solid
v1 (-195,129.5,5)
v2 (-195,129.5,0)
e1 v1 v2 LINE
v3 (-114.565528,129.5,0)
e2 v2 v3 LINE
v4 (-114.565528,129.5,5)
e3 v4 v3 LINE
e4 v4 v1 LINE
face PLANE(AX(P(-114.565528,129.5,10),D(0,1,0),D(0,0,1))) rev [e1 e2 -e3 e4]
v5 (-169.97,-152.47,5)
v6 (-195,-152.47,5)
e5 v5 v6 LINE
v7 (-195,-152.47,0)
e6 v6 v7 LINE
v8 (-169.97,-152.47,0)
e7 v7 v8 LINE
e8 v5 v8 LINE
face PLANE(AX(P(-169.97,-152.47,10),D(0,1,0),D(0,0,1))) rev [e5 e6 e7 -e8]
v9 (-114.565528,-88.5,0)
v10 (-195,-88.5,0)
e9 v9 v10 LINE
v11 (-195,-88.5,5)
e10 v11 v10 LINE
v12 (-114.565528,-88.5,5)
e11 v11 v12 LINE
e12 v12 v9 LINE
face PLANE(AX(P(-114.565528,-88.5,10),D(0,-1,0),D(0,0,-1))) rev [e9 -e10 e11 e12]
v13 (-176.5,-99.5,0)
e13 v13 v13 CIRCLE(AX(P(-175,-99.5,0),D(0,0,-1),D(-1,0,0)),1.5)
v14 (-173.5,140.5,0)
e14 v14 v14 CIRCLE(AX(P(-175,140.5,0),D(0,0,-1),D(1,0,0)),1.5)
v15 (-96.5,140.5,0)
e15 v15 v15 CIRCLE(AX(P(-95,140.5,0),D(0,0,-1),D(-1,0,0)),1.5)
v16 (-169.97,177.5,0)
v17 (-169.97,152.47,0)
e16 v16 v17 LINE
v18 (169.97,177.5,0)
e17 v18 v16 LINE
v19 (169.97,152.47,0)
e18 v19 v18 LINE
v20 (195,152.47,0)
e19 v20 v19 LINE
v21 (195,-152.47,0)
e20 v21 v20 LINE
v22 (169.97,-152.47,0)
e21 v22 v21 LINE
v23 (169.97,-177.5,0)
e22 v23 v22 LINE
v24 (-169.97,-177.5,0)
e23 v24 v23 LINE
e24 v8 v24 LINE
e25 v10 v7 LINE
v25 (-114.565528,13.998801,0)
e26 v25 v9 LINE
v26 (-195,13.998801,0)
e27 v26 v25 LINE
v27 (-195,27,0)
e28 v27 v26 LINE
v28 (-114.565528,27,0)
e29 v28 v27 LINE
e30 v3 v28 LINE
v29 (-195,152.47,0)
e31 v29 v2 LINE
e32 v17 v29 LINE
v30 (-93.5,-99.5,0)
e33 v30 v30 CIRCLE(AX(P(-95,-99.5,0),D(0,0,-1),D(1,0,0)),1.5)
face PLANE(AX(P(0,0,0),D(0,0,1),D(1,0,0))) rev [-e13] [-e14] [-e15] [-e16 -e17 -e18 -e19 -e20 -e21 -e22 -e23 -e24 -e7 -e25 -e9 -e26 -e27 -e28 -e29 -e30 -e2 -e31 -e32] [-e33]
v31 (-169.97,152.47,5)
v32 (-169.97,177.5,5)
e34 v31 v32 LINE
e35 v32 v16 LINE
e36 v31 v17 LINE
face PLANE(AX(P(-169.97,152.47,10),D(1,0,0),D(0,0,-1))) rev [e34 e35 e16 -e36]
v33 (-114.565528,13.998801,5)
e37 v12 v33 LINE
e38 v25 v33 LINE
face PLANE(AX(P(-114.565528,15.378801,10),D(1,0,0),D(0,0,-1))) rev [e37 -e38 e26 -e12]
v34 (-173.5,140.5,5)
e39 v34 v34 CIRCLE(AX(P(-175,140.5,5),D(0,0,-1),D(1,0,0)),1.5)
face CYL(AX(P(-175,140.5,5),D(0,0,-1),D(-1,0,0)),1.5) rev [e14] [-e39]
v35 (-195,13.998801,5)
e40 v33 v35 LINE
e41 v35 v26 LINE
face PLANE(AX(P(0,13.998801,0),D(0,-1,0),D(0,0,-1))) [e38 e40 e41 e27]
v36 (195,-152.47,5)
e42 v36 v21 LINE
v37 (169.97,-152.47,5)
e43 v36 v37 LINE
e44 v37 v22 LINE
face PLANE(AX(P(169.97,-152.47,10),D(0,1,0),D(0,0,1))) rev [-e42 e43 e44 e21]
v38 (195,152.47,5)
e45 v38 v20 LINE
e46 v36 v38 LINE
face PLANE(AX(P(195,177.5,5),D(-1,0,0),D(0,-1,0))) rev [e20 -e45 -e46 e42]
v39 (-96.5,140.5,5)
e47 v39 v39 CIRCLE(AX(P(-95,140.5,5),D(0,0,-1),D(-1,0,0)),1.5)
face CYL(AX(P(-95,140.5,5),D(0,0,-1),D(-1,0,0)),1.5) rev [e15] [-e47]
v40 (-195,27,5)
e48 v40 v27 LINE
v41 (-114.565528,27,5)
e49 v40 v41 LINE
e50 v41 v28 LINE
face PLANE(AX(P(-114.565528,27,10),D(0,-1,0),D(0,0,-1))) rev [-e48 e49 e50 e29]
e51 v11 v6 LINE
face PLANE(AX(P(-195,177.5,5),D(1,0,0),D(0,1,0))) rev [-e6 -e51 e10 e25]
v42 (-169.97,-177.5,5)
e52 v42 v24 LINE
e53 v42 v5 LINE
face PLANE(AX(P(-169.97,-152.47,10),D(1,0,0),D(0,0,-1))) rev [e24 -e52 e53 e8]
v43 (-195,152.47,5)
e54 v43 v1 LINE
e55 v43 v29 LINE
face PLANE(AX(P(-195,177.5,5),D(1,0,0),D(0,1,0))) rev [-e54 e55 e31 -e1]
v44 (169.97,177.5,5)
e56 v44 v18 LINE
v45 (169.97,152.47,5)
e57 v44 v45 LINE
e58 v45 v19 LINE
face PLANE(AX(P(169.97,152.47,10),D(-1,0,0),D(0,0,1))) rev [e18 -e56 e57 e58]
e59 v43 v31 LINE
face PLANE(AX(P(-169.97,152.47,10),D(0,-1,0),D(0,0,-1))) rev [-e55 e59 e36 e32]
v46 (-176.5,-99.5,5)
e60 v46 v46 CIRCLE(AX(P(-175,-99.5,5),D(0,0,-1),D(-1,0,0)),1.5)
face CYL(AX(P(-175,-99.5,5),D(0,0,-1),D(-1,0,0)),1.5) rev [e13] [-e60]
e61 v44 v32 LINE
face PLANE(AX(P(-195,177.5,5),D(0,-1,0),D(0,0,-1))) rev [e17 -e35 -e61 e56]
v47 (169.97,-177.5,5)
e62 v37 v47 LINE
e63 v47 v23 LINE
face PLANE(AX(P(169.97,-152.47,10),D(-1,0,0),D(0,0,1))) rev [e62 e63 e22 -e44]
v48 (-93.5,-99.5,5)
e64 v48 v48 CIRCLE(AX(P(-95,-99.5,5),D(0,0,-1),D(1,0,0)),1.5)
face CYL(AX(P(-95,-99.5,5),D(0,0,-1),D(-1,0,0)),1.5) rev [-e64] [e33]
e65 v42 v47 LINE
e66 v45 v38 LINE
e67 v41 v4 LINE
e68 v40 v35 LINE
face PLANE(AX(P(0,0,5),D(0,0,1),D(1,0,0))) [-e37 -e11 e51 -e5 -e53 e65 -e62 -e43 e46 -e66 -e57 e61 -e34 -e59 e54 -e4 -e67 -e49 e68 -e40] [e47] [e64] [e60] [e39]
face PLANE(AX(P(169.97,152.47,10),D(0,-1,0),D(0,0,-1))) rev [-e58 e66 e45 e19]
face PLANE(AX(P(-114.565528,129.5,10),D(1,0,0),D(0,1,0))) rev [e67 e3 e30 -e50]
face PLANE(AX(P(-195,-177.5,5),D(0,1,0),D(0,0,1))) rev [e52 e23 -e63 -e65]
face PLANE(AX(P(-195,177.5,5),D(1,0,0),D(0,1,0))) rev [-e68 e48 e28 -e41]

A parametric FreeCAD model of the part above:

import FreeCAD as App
import Part
import Sketcher
from FreeCAD import Vector
Q = App.Units.Quantity

doc = App.newDocument("Part")
params = doc.addObject("Spreadsheet::Sheet", "Params")
for row, (alias, value) in enumerate([
    ("sketch1_width", "390 mm"),
    ("sketch1_height", "355 mm"),
    ("pad1_length", "5 mm"),
    ("sketch2_height", "102.5 mm"),
    ("sketch2_width", "25.03 mm"),
    ("pocket1_length", "10 mm"),
    ("sketch3_height", "5 mm"),
    ("pad2_length", "1.38 mm"),
    ("sketch4_diameter", "3 mm"),
], start=1):
    params.set(f"A{row}", alias)
    params.set(f"B{row}", "=" + value)
    params.setAlias(f"B{row}", alias)

body = doc.addObject("PartDesign::Body", "Body")

sketch1 = body.newObject("Sketcher::SketchObject", "Sketch")
sketch1.AttachmentSupport = (doc.getObject("XY_Plane"), [""])
sketch1.MapMode = "FlatFace"
sketch1.addGeometry([
    Part.LineSegment(Vector(-195, 178, 0), Vector(-195, -178, 0)),
    Part.LineSegment(Vector(-195, -178, 0), Vector(195, -178, 0)),
    Part.LineSegment(Vector(195, -178, 0), Vector(195, 178, 0)),
    Part.LineSegment(Vector(195, 178, 0), Vector(-195, 178, 0)),
], False)
sketch1.addConstraint([
    Sketcher.Constraint("Coincident", 0, 2, 1, 1),
    Sketcher.Constraint("Coincident", 1, 2, 2, 1),
    Sketcher.Constraint("Coincident", 2, 2, 3, 1),
    Sketcher.Constraint("Coincident", 3, 2, 0, 1),
    Sketcher.Constraint("Vertical", 0),
    Sketcher.Constraint("Horizontal", 1),
    Sketcher.Constraint("Vertical", 2),
    Sketcher.Constraint("Horizontal", 3),
    Sketcher.Constraint("Symmetric", 0, 2, 2, 2, -1, 1),
    Sketcher.Constraint("DistanceX", 1, 1, 1, 2, Q("390 mm")),
    Sketcher.Constraint("DistanceY", 0, 2, 0, 1, Q("355 mm")),
])
sketch1.setExpression("Constraints[9]", "Params.sketch1_width")
sketch1.setExpression("Constraints[10]", "Params.sketch1_height")
pad1 = body.newObject("PartDesign::Pad", "Pad")
pad1.Profile = sketch1
pad1.setExpression("Length", "Params.pad1_length")

sketch2 = body.newObject("Sketcher::SketchObject", "Sketch001")
sketch2.AttachmentSupport = (doc.getObject("XY_Plane"), [""])
sketch2.MapMode = "FlatFace"
sketch2.addGeometry([
    Part.LineSegment(Vector(-115, 130, 0), Vector(-115, 27, 0)),
    Part.LineSegment(Vector(-115, 27, 0), Vector(-195, 27, 0)),
    Part.LineSegment(Vector(-195, 27, 0), Vector(-195, 130, 0)),
    Part.LineSegment(Vector(-195, 130, 0), Vector(-115, 130, 0)),
    Part.LineSegment(Vector(-115, 15, 0), Vector(-115, -88, 0)),
    Part.LineSegment(Vector(-115, -88, 0), Vector(-195, -88, 0)),
    Part.LineSegment(Vector(-195, -88, 0), Vector(-195, 15, 0)),
    Part.LineSegment(Vector(-195, 15, 0), Vector(-115, 15, 0)),
    Part.LineSegment(Vector(195, 178, 0), Vector(195, 152, 0)),
    Part.LineSegment(Vector(195, 152, 0), Vector(170, 152, 0)),
    Part.LineSegment(Vector(170, 152, 0), Vector(170, 178, 0)),
    Part.LineSegment(Vector(170, 178, 0), Vector(195, 178, 0)),
    Part.LineSegment(Vector(-170, 178, 0), Vector(-170, 152, 0)),
    Part.LineSegment(Vector(-170, 152, 0), Vector(-195, 152, 0)),
    Part.LineSegment(Vector(-195, 152, 0), Vector(-195, 178, 0)),
    Part.LineSegment(Vector(-195, 178, 0), Vector(-170, 178, 0)),
    Part.LineSegment(Vector(-170, -152, 0), Vector(-170, -178, 0)),
    Part.LineSegment(Vector(-170, -178, 0), Vector(-195, -178, 0)),
    Part.LineSegment(Vector(-195, -178, 0), Vector(-195, -152, 0)),
    Part.LineSegment(Vector(-195, -152, 0), Vector(-170, -152, 0)),
    Part.LineSegment(Vector(195, -152, 0), Vector(195, -178, 0)),
    Part.LineSegment(Vector(195, -178, 0), Vector(170, -178, 0)),
    Part.LineSegment(Vector(170, -178, 0), Vector(170, -152, 0)),
    Part.LineSegment(Vector(170, -152, 0), Vector(195, -152, 0)),
], False)
sketch2.addConstraint([
    Sketcher.Constraint("Coincident", 0, 2, 1, 1),
    Sketcher.Constraint("Coincident", 1, 2, 2, 1),
    Sketcher.Constraint("Coincident", 2, 2, 3, 1),
    Sketcher.Constraint("Coincident", 3, 2, 0, 1),
    Sketcher.Constraint("Coincident", 4, 2, 5, 1),
    Sketcher.Constraint("Coincident", 5, 2, 6, 1),
    Sketcher.Constraint("Coincident", 6, 2, 7, 1),
    Sketcher.Constraint("Coincident", 7, 2, 4, 1),
    Sketcher.Constraint("Coincident", 8, 2, 9, 1),
    Sketcher.Constraint("Coincident", 9, 2, 10, 1),
    Sketcher.Constraint("Coincident", 10, 2, 11, 1),
    Sketcher.Constraint("Coincident", 11, 2, 8, 1),
    Sketcher.Constraint("Coincident", 12, 2, 13, 1),
    Sketcher.Constraint("Coincident", 13, 2, 14, 1),
    Sketcher.Constraint("Coincident", 14, 2, 15, 1),
    Sketcher.Constraint("Coincident", 15, 2, 12, 1),
    Sketcher.Constraint("Coincident", 16, 2, 17, 1),
    Sketcher.Constraint("Coincident", 17, 2, 18, 1),
    Sketcher.Constraint("Coincident", 18, 2, 19, 1),
    Sketcher.Constraint("Coincident", 19, 2, 16, 1),
    Sketcher.Constraint("Coincident", 20, 2, 21, 1),
    Sketcher.Constraint("Coincident", 21, 2, 22, 1),
    Sketcher.Constraint("Coincident", 22, 2, 23, 1),
    Sketcher.Constraint("Coincident", 23, 2, 20, 1),
    Sketcher.Constraint("Vertical", 0),
    Sketcher.Constraint("Horizontal", 1),
    Sketcher.Constraint("Vertical", 2),
    Sketcher.Constraint("Horizontal", 3),
    Sketcher.Constraint("Vertical", 4),
    Sketcher.Constraint("Horizontal", 5),
    Sketcher.Constraint("Vertical", 6),
    Sketcher.Constraint("Horizontal", 7),
    Sketcher.Constraint("Vertical", 8),
    Sketcher.Constraint("Horizontal", 9),
    Sketcher.Constraint("Vertical", 10),
    Sketcher.Constraint("Horizontal", 11),
    Sketcher.Constraint("Vertical", 12),
    Sketcher.Constraint("Horizontal", 13),
    Sketcher.Constraint("Vertical", 14),
    Sketcher.Constraint("Horizontal", 15),
    Sketcher.Constraint("Vertical", 16),
    Sketcher.Constraint("Horizontal", 17),
    Sketcher.Constraint("Vertical", 18),
    Sketcher.Constraint("Horizontal", 19),
    Sketcher.Constraint("Vertical", 20),
    Sketcher.Constraint("Horizontal", 21),
    Sketcher.Constraint("Vertical", 22),
    Sketcher.Constraint("Horizontal", 23),
    Sketcher.Constraint("Symmetric", 10, 2, 16, 2, -1, 1),
    Sketcher.Constraint("Symmetric", 8, 2, 18, 2, -1, 1),
    Sketcher.Constraint("Symmetric", 14, 2, 20, 2, -1, 1),
    Sketcher.Constraint("Symmetric", 12, 2, 22, 2, -1, 1),
    Sketcher.Constraint("Symmetric", 9, 2, 12, 2, -2),
    Sketcher.Constraint("Symmetric", 11, 2, 14, 2, -2),
    Sketcher.Constraint("Vertical", 3, 2, 4, 2),
    Sketcher.Constraint("Vertical", 2, 2, 5, 2),
    Sketcher.Constraint("Vertical", 6, 2, 13, 2),
    Sketcher.Constraint("Equal", 23, 8),
    Sketcher.Constraint("DistanceY", 0, 2, 0, 1, Q("102.5 mm")),
    Sketcher.Constraint("DistanceY", -1, 1, 0, 2, Q("27 mm")),
    Sketcher.Constraint("DistanceX", 1, 2, -1, 1, Q("195 mm")),
    Sketcher.Constraint("DistanceY", 4, 2, 3, 2, Q("218 mm")),
    Sketcher.Constraint("DistanceY", 3, 2, 10, 2, Q("48 mm")),
    Sketcher.Constraint("DistanceX", 9, 2, 9, 1, Q("25.03 mm")),
    Sketcher.Constraint("DistanceY", 4, 2, 4, 1, Q("103.878801 mm")),
    Sketcher.Constraint("DistanceX", 1, 2, 1, 1, Q("80.434472 mm")),
])
sketch2.setExpression("Constraints[58]", "Params.sketch2_height")
sketch2.setExpression("Constraints[63]", "Params.sketch2_width")
pocket1 = body.newObject("PartDesign::Pocket", "Pocket")
pocket1.Profile = sketch2
pocket1.setExpression("Length", "Params.pocket1_length")
pocket1.Reversed = True

sketch3 = body.newObject("Sketcher::SketchObject", "Sketch002")
sketch3.AttachmentSupport = (doc.getObject("XZ_Plane"), [""])
sketch3.MapMode = "FlatFace"
sketch3.AttachmentOffset = App.Placement(Vector(0, 0, -15.378801), App.Rotation())
sketch3.addGeometry([
    Part.LineSegment(Vector(-195, 5, 0), Vector(-195, 0, 0)),
    Part.LineSegment(Vector(-195, 0, 0), Vector(-115, 0, 0)),
    Part.LineSegment(Vector(-115, 0, 0), Vector(-115, 5, 0)),
    Part.LineSegment(Vector(-115, 5, 0), Vector(-195, 5, 0)),
], False)
sketch3.addConstraint([
    Sketcher.Constraint("Coincident", 0, 2, 1, 1),
    Sketcher.Constraint("Coincident", 1, 2, 2, 1),
    Sketcher.Constraint("Coincident", 2, 2, 3, 1),
    Sketcher.Constraint("Coincident", 3, 2, 0, 1),
    Sketcher.Constraint("Vertical", 0),
    Sketcher.Constraint("Horizontal", 1),
    Sketcher.Constraint("Vertical", 2),
    Sketcher.Constraint("Horizontal", 3),
    Sketcher.Constraint("PointOnObject", 0, 2, -1),
    Sketcher.Constraint("DistanceY", 0, 2, 0, 1, Q("5 mm")),
    Sketcher.Constraint("DistanceX", 0, 2, -1, 1, Q("195 mm")),
    Sketcher.Constraint("DistanceX", 1, 1, 1, 2, Q("80.434472 mm")),
])
sketch3.setExpression("Constraints[9]", "Params.sketch3_height")
pad2 = body.newObject("PartDesign::Pad", "Pad001")
pad2.Profile = sketch3
pad2.setExpression("Length", "Params.pad2_length")

sketch4 = body.newObject("Sketcher::SketchObject", "Sketch003")
sketch4.AttachmentSupport = (doc.getObject("XY_Plane"), [""])
sketch4.MapMode = "FlatFace"
sketch4.addGeometry([
    Part.Circle(Vector(-175, -99.5, 0), Vector(0, 0, 1), 1.5),
    Part.Circle(Vector(-95, -99.5, 0), Vector(0, 0, 1), 1.5),
    Part.Circle(Vector(-95, 140.5, 0), Vector(0, 0, 1), 1.5),
    Part.Circle(Vector(-175, 140.5, 0), Vector(0, 0, 1), 1.5),
], False)
sketch4.addConstraint([
    Sketcher.Constraint("Equal", 0, 1),
    Sketcher.Constraint("Equal", 1, 2),
    Sketcher.Constraint("Equal", 2, 3),
    Sketcher.Constraint("Horizontal", 0, 3, 1, 3),
    Sketcher.Constraint("Horizontal", 2, 3, 3, 3),
    Sketcher.Constraint("Vertical", 1, 3, 2, 3),
    Sketcher.Constraint("Vertical", 0, 3, 3, 3),
    Sketcher.Constraint("Diameter", 0, Q("3 mm")),
    Sketcher.Constraint("DistanceX", 0, 3, -1, 1, Q("175 mm")),
    Sketcher.Constraint("DistanceX", 1, 3, -1, 1, Q("95 mm")),
    Sketcher.Constraint("DistanceY", 1, 3, 2, 3, Q("240 mm")),
    Sketcher.Constraint("DistanceY", 0, 3, -1, 1, Q("99.5 mm")),
])
sketch4.setExpression("Constraints[7]", "Params.sketch4_diameter")
pocket2 = body.newObject("PartDesign::Pocket", "Pocket001")
pocket2.Profile = sketch4
pocket2.Type = "ThroughAll"
pocket2.Reversed = True

doc.recompute()
